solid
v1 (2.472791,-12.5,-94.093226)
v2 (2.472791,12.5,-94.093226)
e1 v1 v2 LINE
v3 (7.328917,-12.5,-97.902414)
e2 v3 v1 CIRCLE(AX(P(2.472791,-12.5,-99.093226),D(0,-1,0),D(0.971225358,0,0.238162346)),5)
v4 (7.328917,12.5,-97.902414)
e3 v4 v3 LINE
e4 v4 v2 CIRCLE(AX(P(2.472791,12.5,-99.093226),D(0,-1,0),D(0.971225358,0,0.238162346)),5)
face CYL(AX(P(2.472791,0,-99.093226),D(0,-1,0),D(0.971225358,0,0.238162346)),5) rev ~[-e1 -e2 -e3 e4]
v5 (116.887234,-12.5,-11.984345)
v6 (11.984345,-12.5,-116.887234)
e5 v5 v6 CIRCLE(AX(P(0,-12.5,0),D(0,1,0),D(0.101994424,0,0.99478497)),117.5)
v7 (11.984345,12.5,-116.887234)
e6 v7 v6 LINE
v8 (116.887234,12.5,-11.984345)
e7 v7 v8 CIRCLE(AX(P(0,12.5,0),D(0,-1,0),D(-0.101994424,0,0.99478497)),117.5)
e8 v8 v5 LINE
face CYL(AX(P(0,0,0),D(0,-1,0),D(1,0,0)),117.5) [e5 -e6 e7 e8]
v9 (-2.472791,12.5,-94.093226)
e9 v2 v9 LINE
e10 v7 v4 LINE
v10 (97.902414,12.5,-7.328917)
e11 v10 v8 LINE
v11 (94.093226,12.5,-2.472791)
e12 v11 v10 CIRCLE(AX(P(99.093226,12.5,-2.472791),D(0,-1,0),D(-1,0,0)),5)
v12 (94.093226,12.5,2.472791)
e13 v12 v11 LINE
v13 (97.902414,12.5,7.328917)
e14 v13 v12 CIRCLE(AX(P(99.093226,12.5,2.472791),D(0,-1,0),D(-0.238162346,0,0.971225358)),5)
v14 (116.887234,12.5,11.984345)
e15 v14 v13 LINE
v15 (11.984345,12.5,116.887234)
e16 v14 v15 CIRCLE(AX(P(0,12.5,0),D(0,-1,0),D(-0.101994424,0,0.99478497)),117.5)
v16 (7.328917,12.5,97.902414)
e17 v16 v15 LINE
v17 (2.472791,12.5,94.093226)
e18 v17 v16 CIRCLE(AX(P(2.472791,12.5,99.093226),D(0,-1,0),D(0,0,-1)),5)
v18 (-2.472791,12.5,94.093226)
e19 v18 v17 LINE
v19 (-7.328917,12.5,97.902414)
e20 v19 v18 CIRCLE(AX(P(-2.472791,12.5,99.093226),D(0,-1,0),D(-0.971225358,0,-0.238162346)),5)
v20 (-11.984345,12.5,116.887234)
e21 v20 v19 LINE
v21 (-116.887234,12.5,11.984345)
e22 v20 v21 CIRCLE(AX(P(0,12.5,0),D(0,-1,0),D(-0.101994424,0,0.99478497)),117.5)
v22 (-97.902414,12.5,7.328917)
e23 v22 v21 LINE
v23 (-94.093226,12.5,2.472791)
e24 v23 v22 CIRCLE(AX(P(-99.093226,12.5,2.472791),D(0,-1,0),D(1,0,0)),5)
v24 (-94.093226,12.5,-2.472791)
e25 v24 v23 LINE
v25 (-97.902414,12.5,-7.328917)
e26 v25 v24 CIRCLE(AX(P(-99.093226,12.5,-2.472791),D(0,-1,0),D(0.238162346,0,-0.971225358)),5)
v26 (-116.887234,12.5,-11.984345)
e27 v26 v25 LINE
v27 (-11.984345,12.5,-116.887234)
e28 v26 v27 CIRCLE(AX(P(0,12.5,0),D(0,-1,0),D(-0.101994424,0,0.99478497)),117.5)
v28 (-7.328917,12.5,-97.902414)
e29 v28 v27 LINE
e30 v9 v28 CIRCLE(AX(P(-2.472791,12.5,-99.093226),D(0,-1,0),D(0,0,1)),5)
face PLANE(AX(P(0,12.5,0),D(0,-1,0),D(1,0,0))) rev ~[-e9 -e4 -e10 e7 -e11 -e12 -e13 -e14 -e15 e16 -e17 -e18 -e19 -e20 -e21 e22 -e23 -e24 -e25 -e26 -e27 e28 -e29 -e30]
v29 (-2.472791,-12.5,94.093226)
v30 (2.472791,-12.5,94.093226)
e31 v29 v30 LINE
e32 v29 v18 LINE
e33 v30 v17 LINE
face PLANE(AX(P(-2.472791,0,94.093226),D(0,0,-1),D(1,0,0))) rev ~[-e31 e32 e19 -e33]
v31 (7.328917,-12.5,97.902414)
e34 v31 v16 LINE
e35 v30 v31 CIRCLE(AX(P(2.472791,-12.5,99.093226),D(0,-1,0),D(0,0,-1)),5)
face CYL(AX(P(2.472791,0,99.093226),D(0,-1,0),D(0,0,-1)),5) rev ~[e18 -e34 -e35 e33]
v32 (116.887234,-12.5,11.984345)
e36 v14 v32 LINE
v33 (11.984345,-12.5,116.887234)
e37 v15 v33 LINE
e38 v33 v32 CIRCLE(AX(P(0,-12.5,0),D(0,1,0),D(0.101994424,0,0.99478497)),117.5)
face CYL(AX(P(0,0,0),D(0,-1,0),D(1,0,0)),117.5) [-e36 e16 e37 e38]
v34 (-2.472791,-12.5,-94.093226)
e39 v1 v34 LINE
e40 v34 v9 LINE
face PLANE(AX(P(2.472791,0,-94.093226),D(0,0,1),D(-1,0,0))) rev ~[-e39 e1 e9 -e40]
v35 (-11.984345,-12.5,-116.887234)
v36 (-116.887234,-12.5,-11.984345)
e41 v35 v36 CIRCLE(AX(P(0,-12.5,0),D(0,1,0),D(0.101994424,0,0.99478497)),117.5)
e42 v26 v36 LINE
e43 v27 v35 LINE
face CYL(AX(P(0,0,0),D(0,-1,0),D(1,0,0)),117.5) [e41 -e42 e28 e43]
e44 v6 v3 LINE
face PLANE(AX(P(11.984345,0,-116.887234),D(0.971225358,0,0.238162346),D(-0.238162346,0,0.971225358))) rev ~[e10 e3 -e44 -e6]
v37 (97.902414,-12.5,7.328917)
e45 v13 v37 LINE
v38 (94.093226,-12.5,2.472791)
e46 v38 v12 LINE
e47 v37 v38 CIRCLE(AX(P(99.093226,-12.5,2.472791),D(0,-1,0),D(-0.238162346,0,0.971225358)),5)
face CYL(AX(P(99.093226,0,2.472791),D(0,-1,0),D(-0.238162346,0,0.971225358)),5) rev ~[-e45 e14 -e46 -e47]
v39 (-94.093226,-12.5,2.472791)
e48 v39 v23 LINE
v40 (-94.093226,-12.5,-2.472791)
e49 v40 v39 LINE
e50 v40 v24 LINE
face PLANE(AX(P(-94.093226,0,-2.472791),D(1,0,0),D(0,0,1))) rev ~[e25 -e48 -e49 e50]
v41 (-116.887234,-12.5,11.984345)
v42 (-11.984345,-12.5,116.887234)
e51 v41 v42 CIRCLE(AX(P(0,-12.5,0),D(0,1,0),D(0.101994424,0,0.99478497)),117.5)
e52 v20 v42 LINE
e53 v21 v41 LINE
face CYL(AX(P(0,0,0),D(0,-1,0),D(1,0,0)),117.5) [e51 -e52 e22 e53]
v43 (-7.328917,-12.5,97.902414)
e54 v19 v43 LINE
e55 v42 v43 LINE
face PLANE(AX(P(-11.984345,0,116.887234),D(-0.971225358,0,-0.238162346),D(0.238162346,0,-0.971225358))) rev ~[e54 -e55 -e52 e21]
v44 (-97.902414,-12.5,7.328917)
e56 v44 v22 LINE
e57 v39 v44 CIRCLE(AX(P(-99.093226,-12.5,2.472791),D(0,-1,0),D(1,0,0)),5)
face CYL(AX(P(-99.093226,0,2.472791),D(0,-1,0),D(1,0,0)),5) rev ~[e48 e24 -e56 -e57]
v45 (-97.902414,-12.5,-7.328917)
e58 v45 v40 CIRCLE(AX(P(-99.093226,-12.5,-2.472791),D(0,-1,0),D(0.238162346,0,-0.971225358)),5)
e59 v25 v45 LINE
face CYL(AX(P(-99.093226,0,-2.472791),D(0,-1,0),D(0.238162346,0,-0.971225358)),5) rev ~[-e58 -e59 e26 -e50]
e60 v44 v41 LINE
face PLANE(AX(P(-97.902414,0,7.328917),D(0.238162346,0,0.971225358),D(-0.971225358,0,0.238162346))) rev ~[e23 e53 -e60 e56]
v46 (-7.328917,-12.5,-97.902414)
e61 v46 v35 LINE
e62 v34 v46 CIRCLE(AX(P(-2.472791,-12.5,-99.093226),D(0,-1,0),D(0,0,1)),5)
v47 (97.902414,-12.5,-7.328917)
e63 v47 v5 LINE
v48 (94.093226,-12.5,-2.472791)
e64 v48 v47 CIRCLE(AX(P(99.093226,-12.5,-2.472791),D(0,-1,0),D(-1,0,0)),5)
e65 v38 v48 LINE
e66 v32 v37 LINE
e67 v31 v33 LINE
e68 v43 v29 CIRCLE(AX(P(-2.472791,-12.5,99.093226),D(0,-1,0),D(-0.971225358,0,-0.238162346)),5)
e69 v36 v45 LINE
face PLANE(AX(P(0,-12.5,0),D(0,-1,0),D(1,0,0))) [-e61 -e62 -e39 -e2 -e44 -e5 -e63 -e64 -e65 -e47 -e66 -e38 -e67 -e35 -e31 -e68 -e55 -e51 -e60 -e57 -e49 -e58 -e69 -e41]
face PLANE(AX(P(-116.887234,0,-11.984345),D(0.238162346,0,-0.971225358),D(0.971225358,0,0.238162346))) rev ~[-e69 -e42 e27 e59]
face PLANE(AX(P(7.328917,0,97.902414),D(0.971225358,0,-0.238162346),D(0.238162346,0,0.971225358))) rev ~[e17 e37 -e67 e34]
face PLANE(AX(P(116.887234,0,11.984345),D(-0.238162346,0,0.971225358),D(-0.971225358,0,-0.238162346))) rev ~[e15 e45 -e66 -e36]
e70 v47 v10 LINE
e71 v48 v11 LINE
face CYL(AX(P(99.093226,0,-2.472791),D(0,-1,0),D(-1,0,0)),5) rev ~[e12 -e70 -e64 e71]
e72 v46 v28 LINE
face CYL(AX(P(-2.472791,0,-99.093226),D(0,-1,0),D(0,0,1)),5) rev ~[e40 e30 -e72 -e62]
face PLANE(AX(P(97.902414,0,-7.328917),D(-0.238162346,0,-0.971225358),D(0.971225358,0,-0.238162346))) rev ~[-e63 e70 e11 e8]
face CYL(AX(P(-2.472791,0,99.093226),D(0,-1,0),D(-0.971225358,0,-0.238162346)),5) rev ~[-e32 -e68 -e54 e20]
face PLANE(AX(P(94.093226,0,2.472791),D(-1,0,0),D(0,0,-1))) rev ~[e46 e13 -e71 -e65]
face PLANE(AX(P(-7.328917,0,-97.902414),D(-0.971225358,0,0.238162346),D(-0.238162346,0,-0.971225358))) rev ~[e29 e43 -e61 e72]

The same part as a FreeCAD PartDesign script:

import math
import FreeCAD as App
import Part
import Sketcher
from FreeCAD import Vector

doc = App.newDocument("Part")
body = doc.addObject("PartDesign::Body", "Body")

sketch1 = body.newObject("Sketcher::SketchObject", "Sketch")
sketch1.AttachmentSupport = (doc.getObject("XZ_Plane"), [""])
sketch1.MapMode = "FlatFace"
sketch1.addGeometry(Part.Circle(Vector(0, 0, 0), Vector(0, 0, 1), 118), False)
sketch1.addConstraint([
    Sketcher.Constraint("Coincident", 0, 3, -1, 1),
    Sketcher.Constraint("Diameter", 0, 235.0),
])
pad1 = body.newObject("PartDesign::Pad", "Pad")
pad1.Profile = sketch1
pad1.Length = 25
pad1.Midplane = True

sketch2 = body.newObject("Sketcher::SketchObject", "Sketch001")
sketch2.AttachmentSupport = (doc.getObject("XZ_Plane"), [""])
sketch2.MapMode = "FlatFace"
sketch2.addGeometry([
    Part.LineSegment(Vector(7.3, 97.9, 0), Vector(12, 116.9, 0)),
    Part.ArcOfCircle(Part.Circle(Vector(0, 0, 0), Vector(0, 0, 1), 117.5), math.radians(84.15), math.radians(95.85)),
    Part.LineSegment(Vector(-12, 116.9, 0), Vector(-7.3, 97.9, 0)),
    Part.ArcOfCircle(Part.Circle(Vector(-2.5, 99.1, 0), Vector(0, 0, 1), 5), math.radians(-166), math.radians(-90)),
    Part.LineSegment(Vector(-2.5, 94.1, 0), Vector(2.5, 94.1, 0)),
    Part.ArcOfCircle(Part.Circle(Vector(2.5, 99.1, 0), Vector(0, 0, 1), 5), math.radians(-90), math.radians(-14)),
], False)
sketch2.addConstraint([
    Sketcher.Constraint("Coincident", 0, 2, 1, 1),
    Sketcher.Constraint("Coincident", 1, 2, 2, 1),
    Sketcher.Constraint("Tangent", 2, 2, 3, 1),
    Sketcher.Constraint("Tangent", 3, 2, 4, 1),
    Sketcher.Constraint("Tangent", 4, 2, 5, 1),
    Sketcher.Constraint("Tangent", 5, 2, 0, 1),
    Sketcher.Constraint("Horizontal", 4),
    Sketcher.Constraint("Coincident", 1, 3, -1, 1),
    Sketcher.Constraint("Equal", 3, 5),
    Sketcher.Constraint("Symmetric", 2, 2, 5, 2, -2),
    Sketcher.Constraint("Radius", 3, 5.0),
    Sketcher.Constraint("Radius", 1, 117.5),
    Sketcher.Constraint("DistanceX", 4, 1, 4, 2, 4.945581),
    Sketcher.Constraint("DistanceY", 5, 3, 0, 2, 17.794008),
    Sketcher.Constraint("DistanceX", 1, 2, 0, 2, 23.96869),
])
pocket1 = body.newObject("PartDesign::Pocket", "Pocket")
pocket1.Profile = sketch2
pocket1.Length = 25
pocket1.Midplane = True
doc.recompute()

polarpattern = body.newObject("PartDesign::PolarPattern", "PolarPattern")
polarpattern.Originals = [pocket1]
polarpattern.Axis = (doc.getObject("Y_Axis"), [""])
polarpattern.Angle = 360
polarpattern.Occurrences = 4
body.Tip = polarpattern

doc.recompute()
